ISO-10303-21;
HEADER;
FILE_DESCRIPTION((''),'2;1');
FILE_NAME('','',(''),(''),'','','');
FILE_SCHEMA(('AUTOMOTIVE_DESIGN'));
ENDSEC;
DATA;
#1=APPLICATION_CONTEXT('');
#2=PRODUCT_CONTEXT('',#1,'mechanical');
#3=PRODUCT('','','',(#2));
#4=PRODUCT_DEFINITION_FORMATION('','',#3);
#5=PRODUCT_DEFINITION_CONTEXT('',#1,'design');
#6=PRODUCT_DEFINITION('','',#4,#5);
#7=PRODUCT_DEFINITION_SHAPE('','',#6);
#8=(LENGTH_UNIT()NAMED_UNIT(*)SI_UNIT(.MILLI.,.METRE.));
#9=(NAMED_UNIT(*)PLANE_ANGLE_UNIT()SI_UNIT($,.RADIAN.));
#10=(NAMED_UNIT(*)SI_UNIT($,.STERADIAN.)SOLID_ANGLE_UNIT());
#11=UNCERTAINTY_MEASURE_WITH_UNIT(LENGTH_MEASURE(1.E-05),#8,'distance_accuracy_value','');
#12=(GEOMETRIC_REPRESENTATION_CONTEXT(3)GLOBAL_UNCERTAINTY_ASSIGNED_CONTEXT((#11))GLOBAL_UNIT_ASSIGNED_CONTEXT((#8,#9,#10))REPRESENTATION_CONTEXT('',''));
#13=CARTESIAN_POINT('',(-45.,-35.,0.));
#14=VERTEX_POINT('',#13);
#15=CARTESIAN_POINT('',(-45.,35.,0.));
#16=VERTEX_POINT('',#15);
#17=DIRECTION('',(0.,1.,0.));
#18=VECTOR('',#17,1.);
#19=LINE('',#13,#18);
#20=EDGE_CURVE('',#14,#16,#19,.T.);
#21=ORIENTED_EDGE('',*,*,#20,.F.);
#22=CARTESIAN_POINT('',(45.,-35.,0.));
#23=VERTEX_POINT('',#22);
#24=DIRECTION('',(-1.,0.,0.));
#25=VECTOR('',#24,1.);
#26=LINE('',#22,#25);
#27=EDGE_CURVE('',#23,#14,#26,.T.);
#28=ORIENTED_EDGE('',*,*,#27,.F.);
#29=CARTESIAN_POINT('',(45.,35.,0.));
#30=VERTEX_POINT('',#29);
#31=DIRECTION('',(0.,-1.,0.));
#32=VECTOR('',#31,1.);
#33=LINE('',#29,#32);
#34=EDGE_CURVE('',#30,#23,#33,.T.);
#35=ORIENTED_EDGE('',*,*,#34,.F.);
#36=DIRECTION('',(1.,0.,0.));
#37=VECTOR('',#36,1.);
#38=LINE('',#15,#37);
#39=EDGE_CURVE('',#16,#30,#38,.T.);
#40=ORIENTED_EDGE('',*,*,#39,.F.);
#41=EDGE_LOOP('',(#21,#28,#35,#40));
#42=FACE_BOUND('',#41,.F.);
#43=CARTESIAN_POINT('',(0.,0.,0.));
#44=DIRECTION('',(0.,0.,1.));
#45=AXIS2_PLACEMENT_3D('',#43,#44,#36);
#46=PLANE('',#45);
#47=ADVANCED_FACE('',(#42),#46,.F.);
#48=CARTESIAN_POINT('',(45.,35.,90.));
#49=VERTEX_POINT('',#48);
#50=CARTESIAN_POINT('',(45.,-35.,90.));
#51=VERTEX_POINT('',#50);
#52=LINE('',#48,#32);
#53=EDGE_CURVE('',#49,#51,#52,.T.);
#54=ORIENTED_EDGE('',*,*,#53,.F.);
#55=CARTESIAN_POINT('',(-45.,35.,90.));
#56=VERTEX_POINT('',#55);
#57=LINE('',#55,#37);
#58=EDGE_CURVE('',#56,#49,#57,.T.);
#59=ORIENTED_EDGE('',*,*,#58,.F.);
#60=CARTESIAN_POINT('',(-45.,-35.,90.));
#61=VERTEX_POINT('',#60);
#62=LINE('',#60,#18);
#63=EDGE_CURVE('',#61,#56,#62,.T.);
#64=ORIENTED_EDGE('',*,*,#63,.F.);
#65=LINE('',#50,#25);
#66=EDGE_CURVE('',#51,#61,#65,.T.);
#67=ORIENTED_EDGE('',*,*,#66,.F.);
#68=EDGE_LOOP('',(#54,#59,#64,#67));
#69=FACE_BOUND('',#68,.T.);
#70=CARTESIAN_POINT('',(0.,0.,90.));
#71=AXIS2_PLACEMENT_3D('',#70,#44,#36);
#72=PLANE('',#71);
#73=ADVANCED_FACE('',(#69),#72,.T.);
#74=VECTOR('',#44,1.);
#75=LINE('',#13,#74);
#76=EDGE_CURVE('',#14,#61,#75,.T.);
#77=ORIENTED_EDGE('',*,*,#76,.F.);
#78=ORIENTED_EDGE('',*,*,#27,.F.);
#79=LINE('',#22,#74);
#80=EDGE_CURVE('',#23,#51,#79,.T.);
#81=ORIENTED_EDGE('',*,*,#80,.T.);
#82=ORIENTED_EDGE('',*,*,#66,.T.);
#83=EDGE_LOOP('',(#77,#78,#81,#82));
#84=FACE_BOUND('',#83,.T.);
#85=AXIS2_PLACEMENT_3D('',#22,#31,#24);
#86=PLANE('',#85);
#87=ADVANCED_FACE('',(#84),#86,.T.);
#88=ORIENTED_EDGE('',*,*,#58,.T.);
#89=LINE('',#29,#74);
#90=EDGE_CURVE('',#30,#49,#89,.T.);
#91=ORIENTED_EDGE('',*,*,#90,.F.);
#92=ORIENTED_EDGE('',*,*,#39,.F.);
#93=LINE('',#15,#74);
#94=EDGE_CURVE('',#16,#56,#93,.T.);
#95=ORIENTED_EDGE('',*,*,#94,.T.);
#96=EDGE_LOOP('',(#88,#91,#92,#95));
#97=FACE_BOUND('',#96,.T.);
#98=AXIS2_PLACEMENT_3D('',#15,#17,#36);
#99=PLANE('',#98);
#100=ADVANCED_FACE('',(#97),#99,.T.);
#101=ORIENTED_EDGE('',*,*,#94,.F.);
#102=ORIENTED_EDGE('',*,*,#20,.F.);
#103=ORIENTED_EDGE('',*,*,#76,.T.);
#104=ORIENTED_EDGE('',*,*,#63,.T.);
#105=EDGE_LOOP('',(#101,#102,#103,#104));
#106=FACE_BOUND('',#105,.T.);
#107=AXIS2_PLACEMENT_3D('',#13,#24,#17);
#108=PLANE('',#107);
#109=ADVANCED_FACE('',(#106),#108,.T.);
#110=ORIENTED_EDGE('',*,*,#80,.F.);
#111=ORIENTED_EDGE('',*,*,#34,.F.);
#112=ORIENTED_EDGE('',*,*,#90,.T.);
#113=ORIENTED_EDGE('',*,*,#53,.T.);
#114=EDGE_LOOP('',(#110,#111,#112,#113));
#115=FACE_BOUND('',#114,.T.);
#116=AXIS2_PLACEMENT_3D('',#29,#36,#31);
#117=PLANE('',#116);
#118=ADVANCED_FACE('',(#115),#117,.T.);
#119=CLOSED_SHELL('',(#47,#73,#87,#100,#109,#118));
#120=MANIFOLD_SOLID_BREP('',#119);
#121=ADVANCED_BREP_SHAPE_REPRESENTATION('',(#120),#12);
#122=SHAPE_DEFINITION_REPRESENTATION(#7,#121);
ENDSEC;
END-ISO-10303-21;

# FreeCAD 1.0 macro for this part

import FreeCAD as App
import Part
import Sketcher
from FreeCAD import Vector


def add_polygon(sketch, points):
    """Adds a closed chain of lines whose ends are joined by coincident constraints."""
    first, n = sketch.GeometryCount, len(points)
    for a, b in zip(points, points[1:] + points[:1]):
        sketch.addGeometry(Part.LineSegment(App.Vector(*a, 0), App.Vector(*b, 0)), False)
    for i in range(n):
        sketch.addConstraint(Sketcher.Constraint("Coincident", first + i, 2, first + (i + 1) % n, 1))

doc = App.newDocument("Part")
params = doc.addObject("Spreadsheet::Sheet", "Params")
for row, (alias, value) in enumerate([
    ("sketch1_width", "90 mm"),
    ("sketch1_height", "70 mm"),
    ("pad1_length", "90 mm"),
], start=1):
    params.set(f"A{row}", alias)
    params.set(f"B{row}", "=" + value)
    params.setAlias(f"B{row}", alias)

body = doc.addObject("PartDesign::Body", "Body")

# Sketch on XY plane
sketch1 = body.newObject("Sketcher::SketchObject", "Sketch")
sketch1.AttachmentSupport = (doc.getObject("XY_Plane"), [""])
sketch1.MapMode = "FlatFace"
add_polygon(sketch1, [(45, 35), (-45, 35), (-45, -35), (45, -35)])  # lines 0-3
sketch1.addConstraint(Sketcher.Constraint("Horizontal", 0))
sketch1.addConstraint(Sketcher.Constraint("Vertical", 1))
sketch1.addConstraint(Sketcher.Constraint("Horizontal", 2))
sketch1.addConstraint(Sketcher.Constraint("Vertical", 3))
sketch1.addConstraint(Sketcher.Constraint("Symmetric", 0, 2, 2, 2, -1, 1))
sketch1.addConstraint(Sketcher.Constraint("DistanceX", 0, 2, 0, 1, 90.0))
sketch1.addConstraint(Sketcher.Constraint("DistanceY", 1, 2, 1, 1, 70.0))
sketch1.setExpression("Constraints[9]", "Params.sketch1_width")
sketch1.setExpression("Constraints[10]", "Params.sketch1_height")
pad1 = body.newObject("PartDesign::Pad", "Pad")
pad1.Profile = sketch1
pad1.setExpression("Length", "Params.pad1_length")

doc.recompute()
